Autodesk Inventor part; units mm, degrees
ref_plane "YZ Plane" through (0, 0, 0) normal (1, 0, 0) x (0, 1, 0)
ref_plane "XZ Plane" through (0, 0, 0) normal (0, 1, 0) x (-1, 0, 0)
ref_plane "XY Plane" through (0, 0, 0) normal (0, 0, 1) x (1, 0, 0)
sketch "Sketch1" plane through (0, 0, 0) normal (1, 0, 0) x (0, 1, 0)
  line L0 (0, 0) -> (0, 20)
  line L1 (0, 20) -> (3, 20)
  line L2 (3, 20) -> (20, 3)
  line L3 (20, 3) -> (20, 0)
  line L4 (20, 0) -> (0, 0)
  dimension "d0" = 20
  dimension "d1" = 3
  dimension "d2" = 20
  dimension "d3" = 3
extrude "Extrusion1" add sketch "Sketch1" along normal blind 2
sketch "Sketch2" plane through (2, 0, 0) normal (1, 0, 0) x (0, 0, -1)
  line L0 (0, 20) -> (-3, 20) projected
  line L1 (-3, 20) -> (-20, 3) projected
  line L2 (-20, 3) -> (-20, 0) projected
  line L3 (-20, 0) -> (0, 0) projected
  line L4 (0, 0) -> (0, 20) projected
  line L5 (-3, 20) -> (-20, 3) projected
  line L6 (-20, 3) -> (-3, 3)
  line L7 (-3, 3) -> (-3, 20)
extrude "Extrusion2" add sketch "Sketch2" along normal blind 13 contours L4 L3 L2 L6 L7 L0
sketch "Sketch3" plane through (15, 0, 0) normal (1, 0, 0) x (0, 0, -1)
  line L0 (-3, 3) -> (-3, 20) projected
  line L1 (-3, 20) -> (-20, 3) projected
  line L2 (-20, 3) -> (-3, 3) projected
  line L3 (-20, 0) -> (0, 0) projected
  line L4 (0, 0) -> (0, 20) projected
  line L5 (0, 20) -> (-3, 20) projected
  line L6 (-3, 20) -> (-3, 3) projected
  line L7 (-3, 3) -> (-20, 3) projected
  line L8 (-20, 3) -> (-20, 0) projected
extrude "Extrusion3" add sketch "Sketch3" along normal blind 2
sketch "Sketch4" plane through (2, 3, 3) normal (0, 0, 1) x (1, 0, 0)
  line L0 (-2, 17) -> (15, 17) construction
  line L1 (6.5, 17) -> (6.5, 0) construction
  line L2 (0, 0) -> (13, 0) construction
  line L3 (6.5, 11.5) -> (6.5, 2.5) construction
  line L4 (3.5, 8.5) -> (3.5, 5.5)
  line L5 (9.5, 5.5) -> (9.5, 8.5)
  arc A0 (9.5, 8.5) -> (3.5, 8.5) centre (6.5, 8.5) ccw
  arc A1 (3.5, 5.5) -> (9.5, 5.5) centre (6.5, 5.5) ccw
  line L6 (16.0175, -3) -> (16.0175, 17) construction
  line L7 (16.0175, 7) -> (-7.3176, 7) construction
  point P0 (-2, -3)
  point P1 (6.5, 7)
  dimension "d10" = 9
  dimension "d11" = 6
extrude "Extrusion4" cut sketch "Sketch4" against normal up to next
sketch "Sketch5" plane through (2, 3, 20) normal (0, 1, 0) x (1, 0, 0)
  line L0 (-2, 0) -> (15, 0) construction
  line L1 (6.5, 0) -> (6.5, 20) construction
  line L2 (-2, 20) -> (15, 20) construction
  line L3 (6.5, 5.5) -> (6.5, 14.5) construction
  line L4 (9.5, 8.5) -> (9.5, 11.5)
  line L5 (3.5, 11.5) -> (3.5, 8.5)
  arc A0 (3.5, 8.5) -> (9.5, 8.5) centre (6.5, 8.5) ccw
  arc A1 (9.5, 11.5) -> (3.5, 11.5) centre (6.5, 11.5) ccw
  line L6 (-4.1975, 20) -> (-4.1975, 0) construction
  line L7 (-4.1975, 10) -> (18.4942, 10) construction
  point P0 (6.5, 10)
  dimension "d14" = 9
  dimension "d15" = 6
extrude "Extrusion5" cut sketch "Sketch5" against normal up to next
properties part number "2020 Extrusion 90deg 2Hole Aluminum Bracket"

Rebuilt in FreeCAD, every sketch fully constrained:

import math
import FreeCAD as App
import Part
import Sketcher

V = App.Vector


def add_polygon(sketch, points):
    """Adds a closed chain of lines whose ends are joined by coincident constraints."""
    first, n = sketch.GeometryCount, len(points)
    for a, b in zip(points, points[1:] + points[:1]):
        sketch.addGeometry(Part.LineSegment(App.Vector(*a, 0), App.Vector(*b, 0)), False)
    for i in range(n):
        sketch.addConstraint(Sketcher.Constraint("Coincident", first + i, 2, first + (i + 1) % n, 1))

doc = App.newDocument("Part")
body = doc.addObject("PartDesign::Body", "Body")

sketch1 = body.newObject("Sketcher::SketchObject", "Sketch")
sketch1.AttachmentSupport = (doc.getObject("YZ_Plane"), [""])
sketch1.MapMode = "FlatFace"
add_polygon(sketch1, [(0, 20), (0, 0), (20, 0), (20, 3), (3, 20)])
sketch1.addConstraint([
    Sketcher.Constraint("Vertical", 0),
    Sketcher.Constraint("Horizontal", 1),
    Sketcher.Constraint("Vertical", 2),
    Sketcher.Constraint("Horizontal", 4),
    Sketcher.Constraint("Coincident", 0, 2, -1, 1),
    Sketcher.Constraint("Equal", 1, 0),
    Sketcher.Constraint("Equal", 4, 2),
    Sketcher.Constraint("DistanceX", 1, 1, 1, 2, 20.0),
    Sketcher.Constraint("DistanceX", 4, 2, 4, 1, 3.0),
])
pad1 = body.newObject("PartDesign::Pad", "Pad")
pad1.Profile = sketch1
pad1.Length = 2

sketch2 = body.newObject("Sketcher::SketchObject", "Sketch001")
sketch2.AttachmentSupport = (doc.getObject("YZ_Plane"), [""])
sketch2.MapMode = "FlatFace"
sketch2.AttachmentOffset = App.Placement(V(0, 0, 2), App.Rotation())
add_polygon(sketch2, [(0, 0), (20, 0), (20, 3), (3, 3), (3, 20), (0, 20)])
sketch2.addConstraint([
    Sketcher.Constraint("Horizontal", 0),
    Sketcher.Constraint("Vertical", 1),
    Sketcher.Constraint("Horizontal", 2),
    Sketcher.Constraint("Vertical", 3),
    Sketcher.Constraint("Horizontal", 4),
    Sketcher.Constraint("Vertical", 5),
    Sketcher.Constraint("Coincident", 5, 2, -1, 1),
    Sketcher.Constraint("Equal", 4, 1),
    Sketcher.Constraint("Equal", 2, 3),
    Sketcher.Constraint("DistanceX", 0, 1, 0, 2, 20.0),
    Sketcher.Constraint("DistanceX", 2, 2, 2, 1, 17.0),
])
pad2 = body.newObject("PartDesign::Pad", "Pad001")
pad2.Profile = sketch2
pad2.Length = 13

sketch3 = body.newObject("Sketcher::SketchObject", "Sketch002")
sketch3.AttachmentSupport = (doc.getObject("YZ_Plane"), [""])
sketch3.MapMode = "FlatFace"
sketch3.AttachmentOffset = App.Placement(V(0, 0, 15), App.Rotation())
add_polygon(sketch3, [(20, 3), (3, 20), (0, 20), (0, 0), (20, 0)])
sketch3.addConstraint([
    Sketcher.Constraint("Horizontal", 1),
    Sketcher.Constraint("Vertical", 2),
    Sketcher.Constraint("Horizontal", 3),
    Sketcher.Constraint("Vertical", 4),
    Sketcher.Constraint("Coincident", 2, 2, -1, 1),
    Sketcher.Constraint("Equal", 3, 2),
    Sketcher.Constraint("Equal", 1, 4),
    Sketcher.Constraint("DistanceX", 1, 2, 1, 1, 3.0),
    Sketcher.Constraint("DistanceX", 3, 1, 3, 2, 20.0),
])
pad3 = body.newObject("PartDesign::Pad", "Pad002")
pad3.Profile = sketch3
pad3.Length = 2

sketch4 = body.newObject("Sketcher::SketchObject", "Sketch003")
sketch4.AttachmentSupport = (doc.getObject("XY_Plane"), [""])
sketch4.MapMode = "FlatFace"
sketch4.AttachmentOffset = App.Placement(V(0, 0, 3), App.Rotation())
sketch4.addGeometry([
    Part.ArcOfCircle(Part.Circle(V(8.5, 11.5, 0), V(0, 0, 1), 3), math.radians(0), math.radians(180)),
    Part.LineSegment(V(5.5, 11.5, 0), V(5.5, 8.5, 0)),
    Part.ArcOfCircle(Part.Circle(V(8.5, 8.5, 0), V(0, 0, 1), 3), math.radians(180), math.radians(360)),
    Part.LineSegment(V(11.5, 8.5, 0), V(11.5, 11.5, 0)),
], False)
sketch4.addConstraint([
    Sketcher.Constraint("Tangent", 0, 2, 1, 1),
    Sketcher.Constraint("Tangent", 1, 2, 2, 1),
    Sketcher.Constraint("Tangent", 2, 2, 3, 1),
    Sketcher.Constraint("Tangent", 3, 2, 0, 1),
    Sketcher.Constraint("Vertical", 1),
    Sketcher.Constraint("Vertical", 3),
    Sketcher.Constraint("Radius", 0, 3.0),
    Sketcher.Constraint("DistanceY", 1, 2, 1, 1, 3.0),
    Sketcher.Constraint("DistanceX", -1, 1, 0, 3, 8.5),
    Sketcher.Constraint("DistanceY", -1, 1, 0, 3, 11.5),
])
pocket1 = body.newObject("PartDesign::Pocket", "Pocket")
pocket1.Profile = sketch4
pocket1.Type = "UpToFirst"

sketch5 = body.newObject("Sketcher::SketchObject", "Sketch004")
sketch5.AttachmentSupport = (doc.getObject("XZ_Plane"), [""])
sketch5.MapMode = "FlatFace"
sketch5.AttachmentOffset = App.Placement(V(0, 0, -3), App.Rotation())
sketch5.addGeometry([
    Part.ArcOfCircle(Part.Circle(V(8.5, 11.5, 0), V(0, 0, 1), 3), math.radians(0), math.radians(180)),
    Part.LineSegment(V(11.5, 11.5, 0), V(11.5, 8.5, 0)),
    Part.ArcOfCircle(Part.Circle(V(8.5, 8.5, 0), V(0, 0, 1), 3), math.radians(180), math.radians(360)),
    Part.LineSegment(V(5.5, 8.5, 0), V(5.5, 11.5, 0)),
], False)
sketch5.addConstraint([
    Sketcher.Constraint("Tangent", 0, 1, 1, 1),
    Sketcher.Constraint("Tangent", 1, 2, 2, 2),
    Sketcher.Constraint("Tangent", 2, 1, 3, 1),
    Sketcher.Constraint("Tangent", 3, 2, 0, 2),
    Sketcher.Constraint("Vertical", 1),
    Sketcher.Constraint("Vertical", 3),
    Sketcher.Constraint("Radius", 0, 3.0),
    Sketcher.Constraint("DistanceY", 1, 2, 1, 1, 3.0),
    Sketcher.Constraint("DistanceX", -1, 1, 0, 3, 8.5),
    Sketcher.Constraint("DistanceY", -1, 1, 0, 3, 11.5),
])
pocket2 = body.newObject("PartDesign::Pocket", "Pocket001")
pocket2.Profile = sketch5
pocket2.Type = "UpToFirst"
pocket2.Reversed = True

doc.recompute()
